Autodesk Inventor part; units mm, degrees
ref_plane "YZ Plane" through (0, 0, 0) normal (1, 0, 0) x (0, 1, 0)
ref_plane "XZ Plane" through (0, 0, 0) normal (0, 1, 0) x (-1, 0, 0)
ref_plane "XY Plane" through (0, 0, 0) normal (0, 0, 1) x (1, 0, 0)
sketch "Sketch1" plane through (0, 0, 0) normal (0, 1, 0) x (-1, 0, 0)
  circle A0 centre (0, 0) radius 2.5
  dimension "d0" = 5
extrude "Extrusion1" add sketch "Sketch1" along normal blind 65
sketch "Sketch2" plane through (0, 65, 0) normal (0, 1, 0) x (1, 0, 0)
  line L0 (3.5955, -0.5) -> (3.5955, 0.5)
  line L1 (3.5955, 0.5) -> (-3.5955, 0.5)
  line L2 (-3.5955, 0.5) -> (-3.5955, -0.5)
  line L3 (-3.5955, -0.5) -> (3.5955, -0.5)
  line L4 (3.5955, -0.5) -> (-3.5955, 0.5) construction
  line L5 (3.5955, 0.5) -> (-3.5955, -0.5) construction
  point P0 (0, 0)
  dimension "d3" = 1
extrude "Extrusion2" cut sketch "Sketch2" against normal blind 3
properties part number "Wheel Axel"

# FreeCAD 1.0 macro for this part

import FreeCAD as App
import Part
import Sketcher

V = App.Vector
Q = App.Units.Quantity

doc = App.newDocument("Part")
body = doc.addObject("PartDesign::Body", "Body")

sketch1 = body.newObject("Sketcher::SketchObject", "Sketch")
sketch1.AttachmentSupport = (doc.getObject("XZ_Plane"), [""])
sketch1.MapMode = "FlatFace"
sketch1.addGeometry(Part.Circle(V(0, 0, 0), V(0, 0, 1), 2.5), False)
sketch1.addConstraint([
    Sketcher.Constraint("Coincident", 0, 3, -1, 1),
    Sketcher.Constraint("Diameter", 0, Q("5 mm")),
])
pad1 = body.newObject("PartDesign::Pad", "Pad")
pad1.Profile = sketch1
pad1.Length = 65
pad1.Reversed = True

sketch2 = body.newObject("Sketcher::SketchObject", "Sketch001")
sketch2.AttachmentSupport = (doc.getObject("XZ_Plane"), [""])
sketch2.MapMode = "FlatFace"
sketch2.AttachmentOffset = App.Placement(V(0, 0, -65), App.Rotation())
sketch2.addGeometry([
    Part.LineSegment(V(-3.5955, 0.5, 0), V(3.5955, 0.5, 0)),
    Part.LineSegment(V(3.5955, 0.5, 0), V(3.5955, -0.5, 0)),
    Part.LineSegment(V(3.5955, -0.5, 0), V(-3.5955, -0.5, 0)),
    Part.LineSegment(V(-3.5955, -0.5, 0), V(-3.5955, 0.5, 0)),
], False)
sketch2.addConstraint([
    Sketcher.Constraint("Coincident", 0, 2, 1, 1),
    Sketcher.Constraint("Coincident", 1, 2, 2, 1),
    Sketcher.Constraint("Coincident", 2, 2, 3, 1),
    Sketcher.Constraint("Coincident", 3, 2, 0, 1),
    Sketcher.Constraint("Horizontal", 0),
    Sketcher.Constraint("Vertical", 1),
    Sketcher.Constraint("Horizontal", 2),
    Sketcher.Constraint("Vertical", 3),
    Sketcher.Constraint("Symmetric", 0, 2, 2, 2, -1, 1),
    Sketcher.Constraint("DistanceY", 1, 2, 1, 1, Q("1 mm")),
    Sketcher.Constraint("DistanceX", 0, 1, 0, 2, Q("7.191 mm")),
])
pocket1 = body.newObject("PartDesign::Pocket", "Pocket")
pocket1.Profile = sketch2
pocket1.Length = 3
pocket1.Reversed = True

doc.recompute()
